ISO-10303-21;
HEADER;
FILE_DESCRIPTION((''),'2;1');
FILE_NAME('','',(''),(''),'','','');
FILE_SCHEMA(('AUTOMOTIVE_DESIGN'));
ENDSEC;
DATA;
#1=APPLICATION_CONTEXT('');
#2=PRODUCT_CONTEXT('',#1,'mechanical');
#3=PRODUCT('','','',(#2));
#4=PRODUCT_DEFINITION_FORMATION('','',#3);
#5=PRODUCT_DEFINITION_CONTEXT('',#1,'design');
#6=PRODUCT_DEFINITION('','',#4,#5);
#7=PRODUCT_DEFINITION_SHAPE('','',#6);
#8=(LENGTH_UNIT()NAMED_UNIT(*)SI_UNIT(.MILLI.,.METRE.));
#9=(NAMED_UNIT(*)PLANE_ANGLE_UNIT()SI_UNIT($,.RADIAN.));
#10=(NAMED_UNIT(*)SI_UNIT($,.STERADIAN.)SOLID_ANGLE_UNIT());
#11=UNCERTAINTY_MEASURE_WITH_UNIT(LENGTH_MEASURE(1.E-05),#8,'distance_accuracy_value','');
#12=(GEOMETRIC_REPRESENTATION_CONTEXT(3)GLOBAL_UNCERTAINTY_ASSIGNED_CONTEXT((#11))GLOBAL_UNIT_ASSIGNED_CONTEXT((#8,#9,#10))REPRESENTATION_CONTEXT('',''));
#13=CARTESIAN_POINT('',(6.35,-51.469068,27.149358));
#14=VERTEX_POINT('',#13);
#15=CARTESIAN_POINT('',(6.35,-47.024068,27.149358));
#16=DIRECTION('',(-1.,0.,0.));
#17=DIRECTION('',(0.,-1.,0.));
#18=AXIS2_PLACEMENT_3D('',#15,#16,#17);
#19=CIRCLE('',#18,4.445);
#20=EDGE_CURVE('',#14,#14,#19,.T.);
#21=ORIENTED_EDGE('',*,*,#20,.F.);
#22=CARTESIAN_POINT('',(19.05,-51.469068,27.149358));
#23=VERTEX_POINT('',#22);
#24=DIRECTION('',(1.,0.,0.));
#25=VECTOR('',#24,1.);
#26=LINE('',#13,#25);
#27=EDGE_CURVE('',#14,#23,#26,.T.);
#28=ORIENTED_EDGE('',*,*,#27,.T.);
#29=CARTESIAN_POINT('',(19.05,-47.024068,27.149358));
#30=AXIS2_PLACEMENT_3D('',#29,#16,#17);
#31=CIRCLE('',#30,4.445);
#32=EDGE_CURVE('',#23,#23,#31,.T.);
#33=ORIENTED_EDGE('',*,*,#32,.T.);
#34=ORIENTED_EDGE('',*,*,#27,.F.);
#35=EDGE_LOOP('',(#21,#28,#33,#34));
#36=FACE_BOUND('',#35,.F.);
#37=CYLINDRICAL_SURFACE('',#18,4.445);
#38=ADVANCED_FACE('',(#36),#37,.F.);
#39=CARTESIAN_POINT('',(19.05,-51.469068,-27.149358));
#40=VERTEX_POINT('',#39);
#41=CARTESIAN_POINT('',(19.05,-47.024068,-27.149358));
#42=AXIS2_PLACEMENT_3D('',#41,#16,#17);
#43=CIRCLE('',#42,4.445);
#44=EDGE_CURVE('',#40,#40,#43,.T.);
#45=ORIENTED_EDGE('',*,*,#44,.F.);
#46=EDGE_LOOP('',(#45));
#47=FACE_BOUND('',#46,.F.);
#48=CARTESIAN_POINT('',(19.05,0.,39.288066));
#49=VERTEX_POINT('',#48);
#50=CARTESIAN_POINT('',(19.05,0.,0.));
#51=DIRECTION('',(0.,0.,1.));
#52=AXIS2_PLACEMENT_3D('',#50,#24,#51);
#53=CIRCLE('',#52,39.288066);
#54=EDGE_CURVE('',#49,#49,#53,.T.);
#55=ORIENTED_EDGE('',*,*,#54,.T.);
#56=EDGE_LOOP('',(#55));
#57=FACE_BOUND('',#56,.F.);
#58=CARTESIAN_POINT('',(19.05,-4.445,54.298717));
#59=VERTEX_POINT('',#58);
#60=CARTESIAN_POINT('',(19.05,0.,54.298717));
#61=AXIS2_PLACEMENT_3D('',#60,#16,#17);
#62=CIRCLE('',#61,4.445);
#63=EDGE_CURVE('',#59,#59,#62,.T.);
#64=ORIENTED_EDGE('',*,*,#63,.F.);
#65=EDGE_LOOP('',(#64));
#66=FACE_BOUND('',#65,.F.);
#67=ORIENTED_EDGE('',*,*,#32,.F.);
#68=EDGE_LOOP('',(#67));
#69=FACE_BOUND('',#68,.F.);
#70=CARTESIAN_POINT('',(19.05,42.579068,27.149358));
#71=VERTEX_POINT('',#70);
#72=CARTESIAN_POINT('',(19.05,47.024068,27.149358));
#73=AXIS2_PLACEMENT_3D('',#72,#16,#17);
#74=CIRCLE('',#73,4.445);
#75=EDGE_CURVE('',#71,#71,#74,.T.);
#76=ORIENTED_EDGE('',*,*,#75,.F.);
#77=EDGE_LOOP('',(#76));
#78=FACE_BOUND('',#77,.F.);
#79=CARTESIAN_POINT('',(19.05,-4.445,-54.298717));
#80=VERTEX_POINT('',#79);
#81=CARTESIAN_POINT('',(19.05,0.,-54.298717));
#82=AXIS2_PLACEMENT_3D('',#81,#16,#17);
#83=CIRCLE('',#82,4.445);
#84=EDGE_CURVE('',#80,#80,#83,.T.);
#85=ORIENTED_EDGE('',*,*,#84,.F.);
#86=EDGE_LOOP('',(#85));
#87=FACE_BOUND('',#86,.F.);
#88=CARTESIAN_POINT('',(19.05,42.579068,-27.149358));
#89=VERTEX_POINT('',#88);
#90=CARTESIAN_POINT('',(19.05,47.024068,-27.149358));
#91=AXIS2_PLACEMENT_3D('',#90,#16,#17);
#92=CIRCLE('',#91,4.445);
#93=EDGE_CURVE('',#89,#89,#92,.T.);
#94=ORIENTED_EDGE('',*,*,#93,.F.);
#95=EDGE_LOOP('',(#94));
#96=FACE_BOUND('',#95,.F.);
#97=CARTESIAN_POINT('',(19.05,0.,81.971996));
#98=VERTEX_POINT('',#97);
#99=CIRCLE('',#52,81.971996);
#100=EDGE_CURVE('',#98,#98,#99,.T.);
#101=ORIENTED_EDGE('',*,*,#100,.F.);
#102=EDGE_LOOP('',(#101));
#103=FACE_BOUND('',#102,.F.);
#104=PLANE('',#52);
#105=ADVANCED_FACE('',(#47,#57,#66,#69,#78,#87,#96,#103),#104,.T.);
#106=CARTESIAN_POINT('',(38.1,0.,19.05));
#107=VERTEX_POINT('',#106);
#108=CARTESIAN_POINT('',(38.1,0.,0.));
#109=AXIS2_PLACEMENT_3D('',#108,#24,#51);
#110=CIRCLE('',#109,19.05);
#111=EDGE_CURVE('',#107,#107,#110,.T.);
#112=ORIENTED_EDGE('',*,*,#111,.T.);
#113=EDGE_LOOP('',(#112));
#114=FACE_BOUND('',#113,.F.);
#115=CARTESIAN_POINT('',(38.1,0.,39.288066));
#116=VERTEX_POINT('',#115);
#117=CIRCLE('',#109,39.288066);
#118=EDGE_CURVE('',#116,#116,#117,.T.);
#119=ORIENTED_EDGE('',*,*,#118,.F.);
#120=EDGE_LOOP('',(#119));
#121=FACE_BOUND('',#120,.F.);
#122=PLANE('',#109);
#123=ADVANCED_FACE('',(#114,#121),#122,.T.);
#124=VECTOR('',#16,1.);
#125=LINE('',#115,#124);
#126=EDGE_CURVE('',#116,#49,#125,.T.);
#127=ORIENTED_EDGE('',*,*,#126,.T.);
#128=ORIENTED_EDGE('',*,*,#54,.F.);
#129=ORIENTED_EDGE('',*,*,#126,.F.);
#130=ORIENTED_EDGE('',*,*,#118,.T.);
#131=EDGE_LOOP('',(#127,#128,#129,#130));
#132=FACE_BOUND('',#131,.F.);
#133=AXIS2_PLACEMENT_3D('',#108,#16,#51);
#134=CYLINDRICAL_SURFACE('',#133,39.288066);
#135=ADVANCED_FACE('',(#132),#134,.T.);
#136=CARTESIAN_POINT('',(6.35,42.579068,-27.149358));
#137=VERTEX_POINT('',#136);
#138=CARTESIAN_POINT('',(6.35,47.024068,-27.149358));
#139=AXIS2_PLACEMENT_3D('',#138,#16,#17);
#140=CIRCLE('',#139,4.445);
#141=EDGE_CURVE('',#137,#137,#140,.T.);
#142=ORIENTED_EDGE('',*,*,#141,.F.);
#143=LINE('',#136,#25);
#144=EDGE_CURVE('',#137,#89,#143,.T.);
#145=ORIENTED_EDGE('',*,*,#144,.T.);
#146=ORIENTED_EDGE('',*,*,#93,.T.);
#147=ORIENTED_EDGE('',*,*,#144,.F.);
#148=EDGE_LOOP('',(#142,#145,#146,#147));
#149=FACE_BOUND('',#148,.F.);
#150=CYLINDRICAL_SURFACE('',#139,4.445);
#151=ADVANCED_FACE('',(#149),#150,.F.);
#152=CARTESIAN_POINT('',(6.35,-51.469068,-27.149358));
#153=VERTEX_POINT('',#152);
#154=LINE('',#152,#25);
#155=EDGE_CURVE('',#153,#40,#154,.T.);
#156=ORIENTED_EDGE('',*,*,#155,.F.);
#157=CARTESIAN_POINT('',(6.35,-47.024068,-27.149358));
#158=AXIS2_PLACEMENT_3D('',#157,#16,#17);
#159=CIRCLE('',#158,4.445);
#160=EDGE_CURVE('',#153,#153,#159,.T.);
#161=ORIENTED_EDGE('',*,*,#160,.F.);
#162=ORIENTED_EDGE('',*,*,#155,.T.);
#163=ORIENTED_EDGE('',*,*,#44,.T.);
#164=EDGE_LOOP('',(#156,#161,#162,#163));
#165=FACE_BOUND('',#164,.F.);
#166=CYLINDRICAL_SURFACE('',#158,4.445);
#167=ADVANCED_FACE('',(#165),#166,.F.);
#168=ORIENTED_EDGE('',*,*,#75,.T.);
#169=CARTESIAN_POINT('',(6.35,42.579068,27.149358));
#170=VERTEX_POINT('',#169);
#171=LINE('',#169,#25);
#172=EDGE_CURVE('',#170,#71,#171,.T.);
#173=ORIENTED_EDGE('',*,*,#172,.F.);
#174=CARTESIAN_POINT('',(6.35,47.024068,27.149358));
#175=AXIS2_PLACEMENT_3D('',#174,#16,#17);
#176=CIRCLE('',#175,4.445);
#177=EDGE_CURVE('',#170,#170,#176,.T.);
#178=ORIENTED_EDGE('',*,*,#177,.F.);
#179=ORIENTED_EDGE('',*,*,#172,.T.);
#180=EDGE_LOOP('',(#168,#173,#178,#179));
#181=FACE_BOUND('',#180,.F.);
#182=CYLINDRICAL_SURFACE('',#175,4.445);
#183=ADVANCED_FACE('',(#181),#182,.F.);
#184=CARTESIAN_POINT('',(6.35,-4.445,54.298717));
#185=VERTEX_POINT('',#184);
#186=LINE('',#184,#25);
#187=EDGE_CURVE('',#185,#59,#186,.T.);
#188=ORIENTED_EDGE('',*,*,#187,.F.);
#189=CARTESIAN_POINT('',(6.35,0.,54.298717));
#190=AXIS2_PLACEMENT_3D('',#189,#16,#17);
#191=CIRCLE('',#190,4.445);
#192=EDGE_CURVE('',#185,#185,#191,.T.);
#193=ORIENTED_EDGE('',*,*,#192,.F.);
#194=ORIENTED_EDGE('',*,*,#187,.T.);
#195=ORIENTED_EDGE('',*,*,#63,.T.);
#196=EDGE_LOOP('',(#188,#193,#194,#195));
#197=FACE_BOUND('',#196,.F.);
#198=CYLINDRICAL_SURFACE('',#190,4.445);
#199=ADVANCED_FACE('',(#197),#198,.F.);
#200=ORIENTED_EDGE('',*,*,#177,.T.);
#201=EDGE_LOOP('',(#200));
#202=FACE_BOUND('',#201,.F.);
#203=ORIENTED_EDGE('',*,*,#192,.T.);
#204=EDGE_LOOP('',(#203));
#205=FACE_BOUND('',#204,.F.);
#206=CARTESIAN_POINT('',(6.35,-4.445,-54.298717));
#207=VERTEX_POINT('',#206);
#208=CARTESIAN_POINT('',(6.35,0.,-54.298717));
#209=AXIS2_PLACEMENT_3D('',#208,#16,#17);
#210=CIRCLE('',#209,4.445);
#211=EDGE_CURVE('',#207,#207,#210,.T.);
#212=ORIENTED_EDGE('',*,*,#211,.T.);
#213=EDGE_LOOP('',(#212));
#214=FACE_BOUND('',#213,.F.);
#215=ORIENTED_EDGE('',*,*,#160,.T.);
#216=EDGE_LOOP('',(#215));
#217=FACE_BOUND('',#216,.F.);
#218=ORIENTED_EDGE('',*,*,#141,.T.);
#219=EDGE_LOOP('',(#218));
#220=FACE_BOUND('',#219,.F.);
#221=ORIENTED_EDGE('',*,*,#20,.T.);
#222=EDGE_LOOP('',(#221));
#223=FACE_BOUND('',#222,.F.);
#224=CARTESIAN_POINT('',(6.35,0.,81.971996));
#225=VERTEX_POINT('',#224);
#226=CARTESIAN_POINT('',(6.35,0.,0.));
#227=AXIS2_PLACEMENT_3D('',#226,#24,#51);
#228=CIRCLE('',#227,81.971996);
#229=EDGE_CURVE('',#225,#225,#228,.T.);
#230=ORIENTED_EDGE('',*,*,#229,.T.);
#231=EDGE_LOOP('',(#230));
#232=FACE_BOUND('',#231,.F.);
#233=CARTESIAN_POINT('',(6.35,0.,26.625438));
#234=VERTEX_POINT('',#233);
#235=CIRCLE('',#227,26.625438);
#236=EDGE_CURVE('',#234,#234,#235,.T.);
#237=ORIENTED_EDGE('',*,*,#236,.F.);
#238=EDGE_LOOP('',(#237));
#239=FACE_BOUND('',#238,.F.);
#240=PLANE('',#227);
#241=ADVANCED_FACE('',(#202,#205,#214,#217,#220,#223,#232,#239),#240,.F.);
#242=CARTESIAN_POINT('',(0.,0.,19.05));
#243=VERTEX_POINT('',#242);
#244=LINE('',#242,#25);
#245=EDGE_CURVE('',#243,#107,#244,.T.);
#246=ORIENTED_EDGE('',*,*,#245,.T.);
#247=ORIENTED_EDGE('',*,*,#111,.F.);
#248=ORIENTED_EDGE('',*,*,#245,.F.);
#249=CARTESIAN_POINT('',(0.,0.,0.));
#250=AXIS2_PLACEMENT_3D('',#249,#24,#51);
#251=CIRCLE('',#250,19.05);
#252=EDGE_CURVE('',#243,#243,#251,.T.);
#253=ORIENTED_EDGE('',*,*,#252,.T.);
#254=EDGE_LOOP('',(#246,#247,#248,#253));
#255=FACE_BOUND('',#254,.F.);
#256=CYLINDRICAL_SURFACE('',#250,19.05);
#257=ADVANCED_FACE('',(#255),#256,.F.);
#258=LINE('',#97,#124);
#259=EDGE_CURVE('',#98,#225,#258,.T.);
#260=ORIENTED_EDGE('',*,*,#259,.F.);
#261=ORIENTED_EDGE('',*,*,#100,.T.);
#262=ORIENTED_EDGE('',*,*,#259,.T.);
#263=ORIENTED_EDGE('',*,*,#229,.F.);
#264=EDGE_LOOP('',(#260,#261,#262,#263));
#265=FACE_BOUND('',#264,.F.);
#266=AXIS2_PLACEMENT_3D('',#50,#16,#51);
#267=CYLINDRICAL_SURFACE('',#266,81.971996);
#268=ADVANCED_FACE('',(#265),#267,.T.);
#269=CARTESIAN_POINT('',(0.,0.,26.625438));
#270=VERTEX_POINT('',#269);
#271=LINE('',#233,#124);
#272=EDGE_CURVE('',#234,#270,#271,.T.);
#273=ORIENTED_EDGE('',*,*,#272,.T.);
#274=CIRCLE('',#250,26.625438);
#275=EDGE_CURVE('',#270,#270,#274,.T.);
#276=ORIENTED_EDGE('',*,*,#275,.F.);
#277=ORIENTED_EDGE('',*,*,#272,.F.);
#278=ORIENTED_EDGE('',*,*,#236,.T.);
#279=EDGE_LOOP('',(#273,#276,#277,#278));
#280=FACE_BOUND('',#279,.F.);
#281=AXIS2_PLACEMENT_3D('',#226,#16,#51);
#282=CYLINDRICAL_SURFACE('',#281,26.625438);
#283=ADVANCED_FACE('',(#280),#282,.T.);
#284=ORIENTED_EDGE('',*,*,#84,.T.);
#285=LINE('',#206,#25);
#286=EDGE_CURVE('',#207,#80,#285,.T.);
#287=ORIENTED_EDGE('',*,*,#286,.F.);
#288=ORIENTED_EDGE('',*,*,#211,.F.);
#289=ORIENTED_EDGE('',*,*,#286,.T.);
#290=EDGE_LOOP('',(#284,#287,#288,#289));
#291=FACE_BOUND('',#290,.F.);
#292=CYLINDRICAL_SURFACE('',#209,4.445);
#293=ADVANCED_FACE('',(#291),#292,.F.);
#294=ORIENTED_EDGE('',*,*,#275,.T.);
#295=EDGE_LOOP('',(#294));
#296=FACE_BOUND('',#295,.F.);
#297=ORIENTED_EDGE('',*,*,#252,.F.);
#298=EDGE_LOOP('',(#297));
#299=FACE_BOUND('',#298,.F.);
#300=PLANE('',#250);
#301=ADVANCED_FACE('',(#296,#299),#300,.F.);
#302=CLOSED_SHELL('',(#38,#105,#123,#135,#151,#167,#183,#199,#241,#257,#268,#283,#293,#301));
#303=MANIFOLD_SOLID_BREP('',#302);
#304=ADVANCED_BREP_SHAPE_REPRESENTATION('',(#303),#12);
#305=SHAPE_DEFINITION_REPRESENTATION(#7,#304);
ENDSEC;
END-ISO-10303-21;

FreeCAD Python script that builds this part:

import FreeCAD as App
import Part
import Sketcher
Q = App.Units.Quantity

doc = App.newDocument("Part")
params = doc.addObject("Spreadsheet::Sheet", "Params")
for row, (alias, value) in enumerate([
    ("sketch1_width", "1.5 in"),
    ("sketch1_width2", "0.5 in"),
    ("sketch1_width3", "0.75 in"),
    ("revolution_angle", "360 deg"),
    ("sketch2_diameter", "0.35 in"),
], start=1):
    params.set(f"A{row}", alias)
    params.set(f"B{row}", "=" + value)
    params.setAlias(f"B{row}", alias)

body = doc.addObject("PartDesign::Body", "Body")

# Sketch on XZ plane
sketch1 = body.newObject("Sketcher::SketchObject", "Sketch")
sketch1.AttachmentSupport = (doc.getObject("XZ_Plane"), [""])
sketch1.MapMode = "FlatFace"
sketch1.addGeometry([
    Part.LineSegment(App.Vector(0, 27, 0), App.Vector(0, 19, 0)),  # 0
    Part.LineSegment(App.Vector(0, 19, 0), App.Vector(38, 19, 0)),  # 1
    Part.LineSegment(App.Vector(38, 19, 0), App.Vector(38, 39, 0)),  # 2
    Part.LineSegment(App.Vector(38, 39, 0), App.Vector(19, 39, 0)),  # 3
    Part.LineSegment(App.Vector(19, 39, 0), App.Vector(19, 82, 0)),  # 4
    Part.LineSegment(App.Vector(19, 82, 0), App.Vector(6, 82, 0)),  # 5
    Part.LineSegment(App.Vector(6, 82, 0), App.Vector(6, 27, 0)),  # 6
    Part.LineSegment(App.Vector(6, 27, 0), App.Vector(0, 27, 0)),  # 7
], False)
sketch1.addConstraint([
    Sketcher.Constraint("Coincident", 0, 2, 1, 1),
    Sketcher.Constraint("Coincident", 1, 2, 2, 1),
    Sketcher.Constraint("Coincident", 2, 2, 3, 1),
    Sketcher.Constraint("Coincident", 3, 2, 4, 1),
    Sketcher.Constraint("Coincident", 4, 2, 5, 1),
    Sketcher.Constraint("Coincident", 5, 2, 6, 1),
    Sketcher.Constraint("Coincident", 6, 2, 7, 1),
    Sketcher.Constraint("Coincident", 7, 2, 0, 1),
    Sketcher.Constraint("Vertical", 0),
    Sketcher.Constraint("Horizontal", 1),
    Sketcher.Constraint("Vertical", 2),
    Sketcher.Constraint("Horizontal", 3),
    Sketcher.Constraint("Vertical", 4),
    Sketcher.Constraint("Horizontal", 5),
    Sketcher.Constraint("Vertical", 6),
    Sketcher.Constraint("Horizontal", 7),
    Sketcher.Constraint("PointOnObject", 0, 2, -2),
    Sketcher.Constraint("DistanceX", 1, 1, 1, 2, Q("1.5 in")),
    Sketcher.Constraint("DistanceX", 5, 2, 5, 1, Q("0.5 in")),
    Sketcher.Constraint("DistanceX", 3, 2, 3, 1, Q("0.75 in")),
    Sketcher.Constraint("DistanceY", -1, 1, 0, 2, Q("0.75 in")),
    Sketcher.Constraint("DistanceY", 4, 1, 4, 2, 42.683929),
    Sketcher.Constraint("DistanceY", 0, 2, 0, 1, 7.575438),
    Sketcher.Constraint("DistanceY", 2, 1, 2, 2, 20.238066),
])
sketch1.setExpression("Constraints[17]", "Params.sketch1_width")
sketch1.setExpression("Constraints[18]", "Params.sketch1_width2")
sketch1.setExpression("Constraints[19]", "Params.sketch1_width3")
revolution = body.newObject("PartDesign::Revolution", "Revolution")
revolution.Profile = sketch1
revolution.ReferenceAxis = (sketch1, ["H_Axis"])
revolution.setExpression("Angle", "Params.revolution_angle")

# Sketch on YZ plane
sketch2 = body.newObject("Sketcher::SketchObject", "Sketch001")
sketch2.AttachmentSupport = (doc.getObject("YZ_Plane"), [""])
sketch2.MapMode = "FlatFace"
sketch2.AttachmentOffset = App.Placement(App.Vector(0, 0, 0.25 * 25.4), App.Rotation())
sketch2.addGeometry([
    Part.Circle(App.Vector(0, 54.3, 0), App.Vector(0, 0, 1), 4.4),  # 0
    Part.Circle(App.Vector(47, 27.1, 0), App.Vector(0, 0, 1), 4.4),  # 1
    Part.Circle(App.Vector(47, -27.1, 0), App.Vector(0, 0, 1), 4.4),  # 2
    Part.Circle(App.Vector(0, -54.3, 0), App.Vector(0, 0, 1), 4.4),  # 3
    Part.Circle(App.Vector(-47, -27.1, 0), App.Vector(0, 0, 1), 4.4),  # 4
    Part.Circle(App.Vector(-47, 27.1, 0), App.Vector(0, 0, 1), 4.4),  # 5
], False)
sketch2.addConstraint([
    Sketcher.Constraint("Equal", 0, 1),
    Sketcher.Constraint("Equal", 1, 2),
    Sketcher.Constraint("Equal", 2, 3),
    Sketcher.Constraint("Equal", 3, 4),
    Sketcher.Constraint("Equal", 4, 5),
    Sketcher.Constraint("Symmetric", 0, 3, 3, 3, -1, 1),
    Sketcher.Constraint("Symmetric", 1, 3, 4, 3, -1, 1),
    Sketcher.Constraint("Symmetric", 2, 3, 5, 3, -1, 1),
    Sketcher.Constraint("Symmetric", 2, 3, 4, 3, -2),
    Sketcher.Constraint("PointOnObject", 0, 3, -2),
    Sketcher.Constraint("Diameter", 0, Q("0.35 in")),
    Sketcher.Constraint("DistanceX", -1, 1, 1, 3, 47.024068),
    Sketcher.Constraint("DistanceY", -1, 1, 1, 3, 27.149358),
    Sketcher.Constraint("DistanceY", 1, 3, 0, 3, 27.149358),
])
sketch2.setExpression("Constraints[10]", "Params.sketch2_diameter")
pocket1 = body.newObject("PartDesign::Pocket", "Pocket")
pocket1.Profile = sketch2
pocket1.Type = "ThroughAll"
pocket1.Reversed = True

doc.recompute()
